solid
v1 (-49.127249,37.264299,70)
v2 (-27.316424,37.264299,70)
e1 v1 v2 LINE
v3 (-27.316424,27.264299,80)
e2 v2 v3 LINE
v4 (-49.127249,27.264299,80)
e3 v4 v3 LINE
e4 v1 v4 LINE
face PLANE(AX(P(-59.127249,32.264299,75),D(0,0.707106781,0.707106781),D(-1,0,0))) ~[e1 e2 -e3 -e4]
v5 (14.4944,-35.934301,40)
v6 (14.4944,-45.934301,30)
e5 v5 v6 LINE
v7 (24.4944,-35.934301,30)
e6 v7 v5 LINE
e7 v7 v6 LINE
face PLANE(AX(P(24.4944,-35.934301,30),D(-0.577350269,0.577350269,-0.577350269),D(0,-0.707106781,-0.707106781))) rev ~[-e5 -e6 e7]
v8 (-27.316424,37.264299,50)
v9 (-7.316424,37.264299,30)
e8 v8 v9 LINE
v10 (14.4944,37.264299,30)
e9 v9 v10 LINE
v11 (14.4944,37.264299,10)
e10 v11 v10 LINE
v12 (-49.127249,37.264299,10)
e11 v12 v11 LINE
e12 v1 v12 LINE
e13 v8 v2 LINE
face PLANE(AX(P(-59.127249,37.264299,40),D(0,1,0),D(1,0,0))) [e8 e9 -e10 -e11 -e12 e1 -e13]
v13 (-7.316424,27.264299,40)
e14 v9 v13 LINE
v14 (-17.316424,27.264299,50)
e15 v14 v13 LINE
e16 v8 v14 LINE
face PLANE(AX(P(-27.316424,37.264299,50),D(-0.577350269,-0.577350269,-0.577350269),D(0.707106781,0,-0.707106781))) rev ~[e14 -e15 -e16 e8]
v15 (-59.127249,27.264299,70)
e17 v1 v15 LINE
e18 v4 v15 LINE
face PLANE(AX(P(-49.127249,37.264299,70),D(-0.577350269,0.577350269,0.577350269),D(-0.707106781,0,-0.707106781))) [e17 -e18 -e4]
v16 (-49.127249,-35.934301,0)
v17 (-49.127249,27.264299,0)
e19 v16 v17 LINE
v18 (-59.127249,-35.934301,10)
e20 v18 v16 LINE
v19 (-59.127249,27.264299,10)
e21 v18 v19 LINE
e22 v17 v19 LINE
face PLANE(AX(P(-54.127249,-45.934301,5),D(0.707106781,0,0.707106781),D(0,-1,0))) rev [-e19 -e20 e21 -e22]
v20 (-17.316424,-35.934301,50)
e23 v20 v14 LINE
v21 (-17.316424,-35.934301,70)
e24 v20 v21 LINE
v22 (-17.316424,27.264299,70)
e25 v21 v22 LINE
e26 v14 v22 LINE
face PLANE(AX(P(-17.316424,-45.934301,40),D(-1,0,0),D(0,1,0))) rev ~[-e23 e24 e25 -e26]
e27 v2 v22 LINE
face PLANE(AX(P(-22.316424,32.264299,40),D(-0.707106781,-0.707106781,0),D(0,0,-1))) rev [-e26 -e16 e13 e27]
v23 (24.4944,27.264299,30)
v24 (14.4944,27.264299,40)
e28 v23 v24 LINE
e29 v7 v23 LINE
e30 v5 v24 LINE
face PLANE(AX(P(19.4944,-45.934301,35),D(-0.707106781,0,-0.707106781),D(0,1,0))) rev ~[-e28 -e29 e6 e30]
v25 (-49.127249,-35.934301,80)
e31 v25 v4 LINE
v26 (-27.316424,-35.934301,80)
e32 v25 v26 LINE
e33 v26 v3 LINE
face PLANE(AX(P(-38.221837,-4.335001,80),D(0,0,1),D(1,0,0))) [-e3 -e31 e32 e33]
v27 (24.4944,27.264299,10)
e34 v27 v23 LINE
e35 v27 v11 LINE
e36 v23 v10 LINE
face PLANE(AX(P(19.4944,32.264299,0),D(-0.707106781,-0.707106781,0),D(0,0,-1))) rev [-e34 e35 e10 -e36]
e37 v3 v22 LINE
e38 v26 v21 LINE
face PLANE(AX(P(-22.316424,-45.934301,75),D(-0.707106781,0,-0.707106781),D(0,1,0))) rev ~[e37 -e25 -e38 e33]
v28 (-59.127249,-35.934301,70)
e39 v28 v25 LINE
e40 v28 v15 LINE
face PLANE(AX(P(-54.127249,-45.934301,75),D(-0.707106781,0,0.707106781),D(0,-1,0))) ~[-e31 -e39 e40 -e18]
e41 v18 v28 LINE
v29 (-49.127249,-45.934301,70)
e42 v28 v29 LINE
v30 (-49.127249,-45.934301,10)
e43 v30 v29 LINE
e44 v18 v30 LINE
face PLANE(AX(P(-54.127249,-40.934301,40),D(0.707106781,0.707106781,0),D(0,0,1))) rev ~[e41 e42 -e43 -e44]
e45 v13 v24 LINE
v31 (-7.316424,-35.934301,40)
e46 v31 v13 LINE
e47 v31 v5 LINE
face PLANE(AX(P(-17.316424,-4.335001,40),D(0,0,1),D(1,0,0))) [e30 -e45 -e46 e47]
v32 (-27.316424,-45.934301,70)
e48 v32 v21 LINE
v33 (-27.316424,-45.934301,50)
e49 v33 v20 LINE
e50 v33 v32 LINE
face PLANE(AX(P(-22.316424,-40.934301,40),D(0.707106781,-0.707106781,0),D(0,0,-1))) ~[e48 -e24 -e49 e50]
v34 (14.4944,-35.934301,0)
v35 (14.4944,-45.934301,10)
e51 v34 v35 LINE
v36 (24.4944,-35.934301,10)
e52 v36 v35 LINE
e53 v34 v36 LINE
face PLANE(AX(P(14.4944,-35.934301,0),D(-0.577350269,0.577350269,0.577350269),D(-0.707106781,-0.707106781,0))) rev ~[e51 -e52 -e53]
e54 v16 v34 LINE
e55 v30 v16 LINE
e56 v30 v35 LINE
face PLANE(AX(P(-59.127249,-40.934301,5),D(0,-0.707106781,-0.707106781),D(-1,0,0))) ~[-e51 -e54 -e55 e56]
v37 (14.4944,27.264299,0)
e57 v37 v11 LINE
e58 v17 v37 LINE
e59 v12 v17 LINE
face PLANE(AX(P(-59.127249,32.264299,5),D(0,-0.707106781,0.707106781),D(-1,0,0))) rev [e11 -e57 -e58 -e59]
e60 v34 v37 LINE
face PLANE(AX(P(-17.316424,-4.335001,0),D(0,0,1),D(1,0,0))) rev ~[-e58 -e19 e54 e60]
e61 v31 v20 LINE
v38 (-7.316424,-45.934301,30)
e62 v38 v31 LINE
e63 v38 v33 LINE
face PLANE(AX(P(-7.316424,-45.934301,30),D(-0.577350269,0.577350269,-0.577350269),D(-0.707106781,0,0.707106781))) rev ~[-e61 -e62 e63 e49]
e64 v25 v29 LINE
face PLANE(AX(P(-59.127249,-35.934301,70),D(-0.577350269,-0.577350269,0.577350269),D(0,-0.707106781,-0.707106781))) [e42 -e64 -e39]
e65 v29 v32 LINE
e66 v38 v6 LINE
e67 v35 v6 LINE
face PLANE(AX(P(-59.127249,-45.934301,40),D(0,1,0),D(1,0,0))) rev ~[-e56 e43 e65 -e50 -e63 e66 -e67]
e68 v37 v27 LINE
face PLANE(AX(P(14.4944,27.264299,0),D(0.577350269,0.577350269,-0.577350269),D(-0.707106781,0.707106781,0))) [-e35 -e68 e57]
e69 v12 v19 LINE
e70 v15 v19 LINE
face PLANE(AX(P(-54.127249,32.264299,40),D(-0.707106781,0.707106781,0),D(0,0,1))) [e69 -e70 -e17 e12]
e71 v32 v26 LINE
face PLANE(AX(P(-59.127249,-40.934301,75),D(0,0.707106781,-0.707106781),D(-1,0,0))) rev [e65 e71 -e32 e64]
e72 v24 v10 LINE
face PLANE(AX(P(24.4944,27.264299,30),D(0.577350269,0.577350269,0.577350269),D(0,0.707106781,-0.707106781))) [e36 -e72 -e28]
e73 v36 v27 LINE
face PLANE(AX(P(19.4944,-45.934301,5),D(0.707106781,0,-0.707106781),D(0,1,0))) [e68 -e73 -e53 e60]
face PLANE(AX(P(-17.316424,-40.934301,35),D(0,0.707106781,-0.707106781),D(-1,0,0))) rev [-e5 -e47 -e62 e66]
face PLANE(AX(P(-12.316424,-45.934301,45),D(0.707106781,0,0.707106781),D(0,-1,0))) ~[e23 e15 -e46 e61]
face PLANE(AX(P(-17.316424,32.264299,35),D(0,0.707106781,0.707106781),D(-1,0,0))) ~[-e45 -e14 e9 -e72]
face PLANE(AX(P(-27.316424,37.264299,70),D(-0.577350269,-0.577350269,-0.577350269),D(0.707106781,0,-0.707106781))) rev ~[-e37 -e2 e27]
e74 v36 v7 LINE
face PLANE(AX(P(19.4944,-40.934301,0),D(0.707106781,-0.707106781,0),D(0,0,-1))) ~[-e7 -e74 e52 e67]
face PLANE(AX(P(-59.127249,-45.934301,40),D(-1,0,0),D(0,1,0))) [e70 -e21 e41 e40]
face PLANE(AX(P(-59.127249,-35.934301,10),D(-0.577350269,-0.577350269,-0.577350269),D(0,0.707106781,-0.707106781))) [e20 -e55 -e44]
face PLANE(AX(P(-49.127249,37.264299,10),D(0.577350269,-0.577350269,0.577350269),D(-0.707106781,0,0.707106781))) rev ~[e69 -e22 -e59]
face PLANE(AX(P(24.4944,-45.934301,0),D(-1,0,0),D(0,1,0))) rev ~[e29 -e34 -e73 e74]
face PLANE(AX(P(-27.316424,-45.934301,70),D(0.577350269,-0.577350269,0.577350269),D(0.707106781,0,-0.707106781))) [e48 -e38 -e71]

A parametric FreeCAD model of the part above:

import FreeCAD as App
import Part
import Sketcher

V = App.Vector
Q = App.Units.Quantity


def add_polygon(sketch, points):
    """Adds a closed chain of lines whose ends are joined by coincident constraints."""
    first, n = sketch.GeometryCount, len(points)
    for a, b in zip(points, points[1:] + points[:1]):
        sketch.addGeometry(Part.LineSegment(App.Vector(*a, 0), App.Vector(*b, 0)), False)
    for i in range(n):
        sketch.addConstraint(Sketcher.Constraint("Coincident", first + i, 2, first + (i + 1) % n, 1))

doc = App.newDocument("Part")
body = doc.addObject("PartDesign::Body", "Body")

sketch1 = body.newObject("Sketcher::SketchObject", "Sketch")
sketch1.AttachmentSupport = (doc.getObject("XY_Plane"), [""])
sketch1.MapMode = "FlatFace"
add_polygon(sketch1, [(-59.127249, 37.264299), (-59.127249, -45.934301), (24.4944, -45.934301), (24.4944, 37.264299)])
sketch1.addConstraint([
    Sketcher.Constraint("Vertical", 0),
    Sketcher.Constraint("Horizontal", 1),
    Sketcher.Constraint("Vertical", 2),
    Sketcher.Constraint("Horizontal", 3),
    Sketcher.Constraint("DistanceY", 0, 2, 0, 1, Q("83.1986 mm")),
    Sketcher.Constraint("DistanceX", 1, 1, 1, 2, Q("83.621649 mm")),
    Sketcher.Constraint("DistanceY", 0, 2, -1, 1, Q("45.934301 mm")),
    Sketcher.Constraint("DistanceX", -1, 1, 1, 2, Q("24.4944 mm")),
])
pad1 = body.newObject("PartDesign::Pad", "Pad")
pad1.Profile = sketch1
pad1.Length = 40

sketch2 = body.newObject("Sketcher::SketchObject", "Sketch001")
sketch2.AttachmentSupport = (doc.getObject("XY_Plane"), [""])
sketch2.MapMode = "FlatFace"
sketch2.AttachmentOffset = App.Placement(V(0, 0, 40), App.Rotation())
add_polygon(sketch2, [(-59.127249, 37.264299), (-59.127249, -45.934301), (-17.316424, -45.934301), (-17.316424, 37.264299)])
sketch2.addConstraint([
    Sketcher.Constraint("Vertical", 0),
    Sketcher.Constraint("Horizontal", 1),
    Sketcher.Constraint("Vertical", 2),
    Sketcher.Constraint("Horizontal", 3),
    Sketcher.Constraint("DistanceY", 0, 2, 0, 1, Q("83.1986 mm")),
    Sketcher.Constraint("DistanceY", 0, 2, -1, 1, Q("45.934301 mm")),
    Sketcher.Constraint("DistanceX", 1, 1, 1, 2, Q("41.810825 mm")),
    Sketcher.Constraint("DistanceX", 0, 2, -1, 1, Q("59.127249 mm")),
])
pad2 = body.newObject("PartDesign::Pad", "Pad001")
pad2.Profile = sketch2
pad2.Length = 40
doc.recompute()

chamfer = body.newObject("PartDesign::Chamfer", "Chamfer")
chamfer.Base = (pad2, ["Edge1"])
chamfer.UseAllEdges = True
chamfer.Size = 10

doc.recompute()
